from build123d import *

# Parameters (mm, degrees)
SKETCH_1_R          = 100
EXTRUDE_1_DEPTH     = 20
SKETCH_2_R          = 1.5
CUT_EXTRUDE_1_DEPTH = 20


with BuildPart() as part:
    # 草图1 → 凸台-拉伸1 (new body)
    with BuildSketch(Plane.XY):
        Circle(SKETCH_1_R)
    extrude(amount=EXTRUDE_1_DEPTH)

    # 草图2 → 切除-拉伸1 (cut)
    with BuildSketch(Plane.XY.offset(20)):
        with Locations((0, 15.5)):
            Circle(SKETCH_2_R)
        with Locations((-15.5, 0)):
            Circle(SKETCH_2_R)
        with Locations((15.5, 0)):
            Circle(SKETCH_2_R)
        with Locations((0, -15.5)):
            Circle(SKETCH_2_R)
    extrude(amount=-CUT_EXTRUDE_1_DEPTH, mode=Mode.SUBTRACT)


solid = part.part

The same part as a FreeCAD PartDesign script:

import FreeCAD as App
import Part
import Sketcher
from FreeCAD import Vector
Q = App.Units.Quantity

doc = App.newDocument("Part")
body = doc.addObject("PartDesign::Body", "Body")

sketch1 = body.newObject("Sketcher::SketchObject", "Sketch")
sketch1.AttachmentSupport = (doc.getObject("XY_Plane"), [""])
sketch1.MapMode = "FlatFace"
sketch1.addGeometry(Part.Circle(Vector(0, 0, 0), Vector(0, 0, 1), 100), False)
sketch1.addConstraint(Sketcher.Constraint("Coincident", 0, 3, -1, 1))
sketch1.addConstraint(Sketcher.Constraint("Diameter", 0, Q("200 mm")))
pad1 = body.newObject("PartDesign::Pad", "Pad")
pad1.Profile = sketch1
pad1.Length = 20

sketch2 = body.newObject("Sketcher::SketchObject", "Sketch001")
sketch2.AttachmentSupport = (doc.getObject("XY_Plane"), [""])
sketch2.MapMode = "FlatFace"
sketch2.AttachmentOffset = App.Placement(Vector(0, 0, 20), App.Rotation())
sketch2.addGeometry(Part.Circle(Vector(0, 15.5, 0), Vector(0, 0, 1), 1.5), False)
sketch2.addGeometry(Part.Circle(Vector(-15.5, 0, 0), Vector(0, 0, 1), 1.5), False)
sketch2.addGeometry(Part.Circle(Vector(15.5, 0, 0), Vector(0, 0, 1), 1.5), False)
sketch2.addGeometry(Part.Circle(Vector(0, -15.5, 0), Vector(0, 0, 1), 1.5), False)
sketch2.addConstraint(Sketcher.Constraint("Equal", 0, 1))
sketch2.addConstraint(Sketcher.Constraint("Equal", 1, 2))
sketch2.addConstraint(Sketcher.Constraint("Equal", 2, 3))
sketch2.addConstraint(Sketcher.Constraint("Symmetric", 1, 3, 2, 3, -1, 1))
sketch2.addConstraint(Sketcher.Constraint("Symmetric", 0, 3, 3, 3, -1, 1))
sketch2.addConstraint(Sketcher.Constraint("PointOnObject", 0, 3, -2))
sketch2.addConstraint(Sketcher.Constraint("PointOnObject", 1, 3, -1))
sketch2.addConstraint(Sketcher.Constraint("Diameter", 0, Q("3 mm")))
sketch2.addConstraint(Sketcher.Constraint("DistanceX", 1, 3, 2, 3, Q("31 mm")))
sketch2.addConstraint(Sketcher.Constraint("DistanceY", 3, 3, 0, 3, Q("31 mm")))
pocket1 = body.newObject("PartDesign::Pocket", "Pocket")
pocket1.Profile = sketch2
pocket1.Length = 20

doc.recompute()
